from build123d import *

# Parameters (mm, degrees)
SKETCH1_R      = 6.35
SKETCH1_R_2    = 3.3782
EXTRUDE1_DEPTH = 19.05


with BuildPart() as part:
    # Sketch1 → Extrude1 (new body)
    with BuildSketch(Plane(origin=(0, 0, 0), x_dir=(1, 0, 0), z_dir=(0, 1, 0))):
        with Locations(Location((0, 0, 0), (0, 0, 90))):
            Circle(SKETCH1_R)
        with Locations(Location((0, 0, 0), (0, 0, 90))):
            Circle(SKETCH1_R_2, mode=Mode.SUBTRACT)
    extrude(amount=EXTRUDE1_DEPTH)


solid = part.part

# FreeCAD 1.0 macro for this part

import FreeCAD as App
import Part
import Sketcher
from FreeCAD import Vector
Q = App.Units.Quantity

doc = App.newDocument("Part")
body = doc.addObject("PartDesign::Body", "Body")

sketch1 = doc.addObject("Sketcher::SketchObject", "Sketch")
body.addObject(sketch1)
sketch1.AttachmentSupport = (doc.XZ_Plane, [""])
sketch1.MapMode = "FlatFace"
sketch1.addGeometry(Part.Circle(Vector(0, 0, 0), Vector(0, 0, 1), 6.3), False)
sketch1.addGeometry(Part.Circle(Vector(0, 0, 0), Vector(0, 0, 1), 3.4), False)
sketch1.addConstraint(Sketcher.Constraint("Coincident", 0, 3, -1, 1))
sketch1.addConstraint(Sketcher.Constraint("Coincident", 1, 3, -1, 1))
sketch1.addConstraint(Sketcher.Constraint("Diameter", 0, Q("0.5 in")))
sketch1.addConstraint(Sketcher.Constraint("Diameter", 1, Q("0.266 in")))
pad1 = doc.addObject("PartDesign::Pad", "Pad")
body.addObject(pad1)
pad1.Profile = sketch1
pad1.Length = Q("0.75 in")
pad1.Reversed = True

doc.recompute()
